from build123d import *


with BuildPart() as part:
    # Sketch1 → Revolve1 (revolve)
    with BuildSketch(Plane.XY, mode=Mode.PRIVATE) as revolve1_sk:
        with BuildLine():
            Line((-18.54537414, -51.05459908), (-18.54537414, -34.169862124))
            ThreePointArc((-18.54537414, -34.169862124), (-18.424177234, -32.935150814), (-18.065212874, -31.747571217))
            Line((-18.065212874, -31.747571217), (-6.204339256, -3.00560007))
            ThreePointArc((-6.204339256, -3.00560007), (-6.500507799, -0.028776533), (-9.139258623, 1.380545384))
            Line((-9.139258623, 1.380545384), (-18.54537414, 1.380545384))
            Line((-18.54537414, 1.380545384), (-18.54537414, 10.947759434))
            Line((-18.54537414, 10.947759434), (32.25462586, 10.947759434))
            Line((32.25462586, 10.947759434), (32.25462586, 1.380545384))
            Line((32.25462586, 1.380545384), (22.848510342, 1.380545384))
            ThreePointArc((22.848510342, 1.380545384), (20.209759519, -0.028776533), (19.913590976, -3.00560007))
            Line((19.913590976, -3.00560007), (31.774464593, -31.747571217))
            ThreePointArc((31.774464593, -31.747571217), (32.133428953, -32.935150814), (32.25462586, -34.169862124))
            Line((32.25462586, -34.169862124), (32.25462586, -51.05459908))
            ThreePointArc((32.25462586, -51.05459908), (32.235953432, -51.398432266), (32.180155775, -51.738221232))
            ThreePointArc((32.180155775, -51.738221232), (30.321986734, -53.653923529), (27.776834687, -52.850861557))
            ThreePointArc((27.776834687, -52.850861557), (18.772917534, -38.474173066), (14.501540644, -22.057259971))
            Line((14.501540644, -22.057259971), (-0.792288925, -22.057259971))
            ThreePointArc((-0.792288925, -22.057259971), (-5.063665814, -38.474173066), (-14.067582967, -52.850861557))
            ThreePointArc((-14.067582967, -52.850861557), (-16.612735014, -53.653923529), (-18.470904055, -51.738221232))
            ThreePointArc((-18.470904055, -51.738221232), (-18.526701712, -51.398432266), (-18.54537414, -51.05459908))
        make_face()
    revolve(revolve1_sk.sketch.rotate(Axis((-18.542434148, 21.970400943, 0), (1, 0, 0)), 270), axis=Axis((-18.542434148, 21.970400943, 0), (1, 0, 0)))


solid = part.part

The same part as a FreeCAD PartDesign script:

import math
import FreeCAD as App
import Part
import Sketcher
Q = App.Units.Quantity

doc = App.newDocument("Part")
body = doc.addObject("PartDesign::Body", "Body")

sketch1 = body.newObject("Sketcher::SketchObject", "Sketch")
sketch1.AttachmentSupport = (doc.getObject("XY_Plane"), [""])
sketch1.MapMode = "FlatFace"
sketch1.addGeometry([
    Part.LineSegment(App.Vector(-18.5, -34.2, 0), App.Vector(-18.5, -51.1, 0)),
    Part.ArcOfCircle(Part.Circle(App.Vector(-15.4, -51.1, 0), App.Vector(0, 0, 1), 3.2), math.radians(180), math.radians(192.43)),
    Part.ArcOfCircle(Part.Circle(App.Vector(-16, -51.2, 0), App.Vector(0, 0, 1), 2.5), math.radians(-168), math.radians(-41)),
    Part.ArcOfCircle(Part.Circle(App.Vector(-56.3, -16.4, 0), App.Vector(0, 0, 1), 55.8), math.radians(-41), math.radians(-6)),
    Part.LineSegment(App.Vector(-0.8, -22.1, 0), App.Vector(14.5, -22.1, 0)),
    Part.ArcOfCircle(Part.Circle(App.Vector(70, -16.4, 0), App.Vector(0, 0, 1), 55.8), math.radians(-174), math.radians(-139)),
    Part.ArcOfCircle(Part.Circle(App.Vector(29.7, -51.2, 0), App.Vector(0, 0, 1), 2.5), math.radians(-139), math.radians(-12)),
    Part.ArcOfCircle(Part.Circle(App.Vector(29.1, -51.1, 0), App.Vector(0, 0, 1), 3.2), math.radians(-12.43), math.radians(0)),
    Part.LineSegment(App.Vector(32.3, -51.1, 0), App.Vector(32.3, -34.2, 0)),
    Part.ArcOfCircle(Part.Circle(App.Vector(25.9, -34.2, 0), App.Vector(0, 0, 1), 6.4), math.radians(0), math.radians(22)),
    Part.LineSegment(App.Vector(31.8, -31.7, 0), App.Vector(19.9, -3, 0)),
    Part.ArcOfCircle(Part.Circle(App.Vector(22.8, -1.8, 0), App.Vector(0, 0, 1), 3.2), math.radians(90), math.radians(202)),
    Part.LineSegment(App.Vector(22.8, 1.4, 0), App.Vector(32.3, 1.4, 0)),
    Part.LineSegment(App.Vector(32.3, 1.4, 0), App.Vector(32.3, 10.9, 0)),
    Part.LineSegment(App.Vector(32.3, 10.9, 0), App.Vector(-18.5, 10.9, 0)),
    Part.LineSegment(App.Vector(-18.5, 10.9, 0), App.Vector(-18.5, 1.4, 0)),
    Part.LineSegment(App.Vector(-18.5, 1.4, 0), App.Vector(-9.1, 1.4, 0)),
    Part.ArcOfCircle(Part.Circle(App.Vector(-9.1, -1.8, 0), App.Vector(0, 0, 1), 3.2), math.radians(-22), math.radians(90)),
    Part.LineSegment(App.Vector(-6.2, -3, 0), App.Vector(-18.1, -31.7, 0)),
    Part.ArcOfCircle(Part.Circle(App.Vector(-12.2, -34.2, 0), App.Vector(0, 0, 1), 6.3), math.radians(158), math.radians(180)),
], False)
sketch1.addGeometry(Part.LineSegment(App.Vector(-56.3, 22, 0), App.Vector(70, 22, 0)), True)
sketch1.addConstraint([
    Sketcher.Constraint("Tangent", 0, 2, 1, 1),
    Sketcher.Constraint("Tangent", 1, 2, 2, 1),
    Sketcher.Constraint("Tangent", 2, 2, 3, 1),
    Sketcher.Constraint("Coincident", 3, 2, 4, 1),
    Sketcher.Constraint("Coincident", 4, 2, 5, 1),
    Sketcher.Constraint("Tangent", 5, 2, 6, 1),
    Sketcher.Constraint("Tangent", 6, 2, 7, 1),
    Sketcher.Constraint("Tangent", 7, 2, 8, 1),
    Sketcher.Constraint("Tangent", 8, 2, 9, 1),
    Sketcher.Constraint("Tangent", 9, 2, 10, 1),
    Sketcher.Constraint("Tangent", 10, 2, 11, 2),
    Sketcher.Constraint("Tangent", 11, 1, 12, 1),
    Sketcher.Constraint("Coincident", 12, 2, 13, 1),
    Sketcher.Constraint("Coincident", 13, 2, 14, 1),
    Sketcher.Constraint("Coincident", 14, 2, 15, 1),
    Sketcher.Constraint("Coincident", 15, 2, 16, 1),
    Sketcher.Constraint("Tangent", 16, 2, 17, 2),
    Sketcher.Constraint("Tangent", 17, 1, 18, 1),
    Sketcher.Constraint("Tangent", 18, 2, 19, 1),
    Sketcher.Constraint("Tangent", 19, 2, 0, 1),
    Sketcher.Constraint("Vertical", 0),
    Sketcher.Constraint("Horizontal", 4),
    Sketcher.Constraint("Vertical", 8),
    Sketcher.Constraint("Horizontal", 12),
    Sketcher.Constraint("Vertical", 13),
    Sketcher.Constraint("Horizontal", 14),
    Sketcher.Constraint("Vertical", 15),
    Sketcher.Constraint("Horizontal", 16),
    Sketcher.Constraint("Horizontal", 20),
    Sketcher.Constraint("Equal", 3, 5),
    Sketcher.Constraint("Equal", 2, 6),
    Sketcher.Constraint("Equal", 1, 7),
    Sketcher.Constraint("Equal", 7, 11),
    Sketcher.Constraint("Equal", 11, 17),
    Sketcher.Constraint("Equal", 9, 19),
    Sketcher.Constraint("Horizontal", 3, 3, 5, 3),
    Sketcher.Constraint("Horizontal", 2, 3, 6, 3),
    Sketcher.Constraint("Horizontal", 1, 3, 7, 3),
    Sketcher.Constraint("Horizontal", 11, 3, 17, 3),
    Sketcher.Constraint("Horizontal", 9, 3, 19, 3),
    Sketcher.Constraint("Horizontal", 10, 2, 17, 1),
    Sketcher.Constraint("Vertical", 8, 2, 12, 2),
    Sketcher.Constraint("Vertical", 0, 2, 14, 2),
    Sketcher.Constraint("Vertical", 3, 3, 20, 1),
    Sketcher.Constraint("Vertical", 5, 3, 20, 2),
    Sketcher.Constraint("Radius", 2, Q("0.1 in")),
    Sketcher.Constraint("DistanceX", 14, 2, 14, 1, Q("2 in")),
    Sketcher.Constraint("Radius", 9, Q("0.25 in")),
    Sketcher.Constraint("Radius", 1, Q("0.125 in")),
    Sketcher.Constraint("Radius", 3, 55.836784),
    Sketcher.Constraint("DistanceX", 4, 1, 4, 2, 15.29383),
    Sketcher.Constraint("DistanceX", 20, 1, 20, 2, 126.38646),
    Sketcher.Constraint("DistanceY", 1, 3, -1, 1, 51.054599),
    Sketcher.Constraint("DistanceY", 10, 2, -1, 1, 3.0056),
    Sketcher.Constraint("DistanceY", -1, 1, 20, 1, 21.970401),
    Sketcher.Constraint("DistanceY", 9, 3, 5, 3, 17.800602),
    Sketcher.Constraint("DistanceY", 2, 2, 19, 3, 18.680999),
    Sketcher.Constraint("DistanceX", 3, 2, 11, 3, 23.640799),
    Sketcher.Constraint("DistanceY", 13, 1, 13, 2, 9.567214),
    Sketcher.Constraint("DistanceX", 2, 3, -1, 1, 15.99048),
])
revolution = body.newObject("PartDesign::Revolution", "Revolution")
revolution.Profile = sketch1
revolution.ReferenceAxis = (sketch1, ["Axis0"])
revolution.Angle = 360

doc.recompute()
